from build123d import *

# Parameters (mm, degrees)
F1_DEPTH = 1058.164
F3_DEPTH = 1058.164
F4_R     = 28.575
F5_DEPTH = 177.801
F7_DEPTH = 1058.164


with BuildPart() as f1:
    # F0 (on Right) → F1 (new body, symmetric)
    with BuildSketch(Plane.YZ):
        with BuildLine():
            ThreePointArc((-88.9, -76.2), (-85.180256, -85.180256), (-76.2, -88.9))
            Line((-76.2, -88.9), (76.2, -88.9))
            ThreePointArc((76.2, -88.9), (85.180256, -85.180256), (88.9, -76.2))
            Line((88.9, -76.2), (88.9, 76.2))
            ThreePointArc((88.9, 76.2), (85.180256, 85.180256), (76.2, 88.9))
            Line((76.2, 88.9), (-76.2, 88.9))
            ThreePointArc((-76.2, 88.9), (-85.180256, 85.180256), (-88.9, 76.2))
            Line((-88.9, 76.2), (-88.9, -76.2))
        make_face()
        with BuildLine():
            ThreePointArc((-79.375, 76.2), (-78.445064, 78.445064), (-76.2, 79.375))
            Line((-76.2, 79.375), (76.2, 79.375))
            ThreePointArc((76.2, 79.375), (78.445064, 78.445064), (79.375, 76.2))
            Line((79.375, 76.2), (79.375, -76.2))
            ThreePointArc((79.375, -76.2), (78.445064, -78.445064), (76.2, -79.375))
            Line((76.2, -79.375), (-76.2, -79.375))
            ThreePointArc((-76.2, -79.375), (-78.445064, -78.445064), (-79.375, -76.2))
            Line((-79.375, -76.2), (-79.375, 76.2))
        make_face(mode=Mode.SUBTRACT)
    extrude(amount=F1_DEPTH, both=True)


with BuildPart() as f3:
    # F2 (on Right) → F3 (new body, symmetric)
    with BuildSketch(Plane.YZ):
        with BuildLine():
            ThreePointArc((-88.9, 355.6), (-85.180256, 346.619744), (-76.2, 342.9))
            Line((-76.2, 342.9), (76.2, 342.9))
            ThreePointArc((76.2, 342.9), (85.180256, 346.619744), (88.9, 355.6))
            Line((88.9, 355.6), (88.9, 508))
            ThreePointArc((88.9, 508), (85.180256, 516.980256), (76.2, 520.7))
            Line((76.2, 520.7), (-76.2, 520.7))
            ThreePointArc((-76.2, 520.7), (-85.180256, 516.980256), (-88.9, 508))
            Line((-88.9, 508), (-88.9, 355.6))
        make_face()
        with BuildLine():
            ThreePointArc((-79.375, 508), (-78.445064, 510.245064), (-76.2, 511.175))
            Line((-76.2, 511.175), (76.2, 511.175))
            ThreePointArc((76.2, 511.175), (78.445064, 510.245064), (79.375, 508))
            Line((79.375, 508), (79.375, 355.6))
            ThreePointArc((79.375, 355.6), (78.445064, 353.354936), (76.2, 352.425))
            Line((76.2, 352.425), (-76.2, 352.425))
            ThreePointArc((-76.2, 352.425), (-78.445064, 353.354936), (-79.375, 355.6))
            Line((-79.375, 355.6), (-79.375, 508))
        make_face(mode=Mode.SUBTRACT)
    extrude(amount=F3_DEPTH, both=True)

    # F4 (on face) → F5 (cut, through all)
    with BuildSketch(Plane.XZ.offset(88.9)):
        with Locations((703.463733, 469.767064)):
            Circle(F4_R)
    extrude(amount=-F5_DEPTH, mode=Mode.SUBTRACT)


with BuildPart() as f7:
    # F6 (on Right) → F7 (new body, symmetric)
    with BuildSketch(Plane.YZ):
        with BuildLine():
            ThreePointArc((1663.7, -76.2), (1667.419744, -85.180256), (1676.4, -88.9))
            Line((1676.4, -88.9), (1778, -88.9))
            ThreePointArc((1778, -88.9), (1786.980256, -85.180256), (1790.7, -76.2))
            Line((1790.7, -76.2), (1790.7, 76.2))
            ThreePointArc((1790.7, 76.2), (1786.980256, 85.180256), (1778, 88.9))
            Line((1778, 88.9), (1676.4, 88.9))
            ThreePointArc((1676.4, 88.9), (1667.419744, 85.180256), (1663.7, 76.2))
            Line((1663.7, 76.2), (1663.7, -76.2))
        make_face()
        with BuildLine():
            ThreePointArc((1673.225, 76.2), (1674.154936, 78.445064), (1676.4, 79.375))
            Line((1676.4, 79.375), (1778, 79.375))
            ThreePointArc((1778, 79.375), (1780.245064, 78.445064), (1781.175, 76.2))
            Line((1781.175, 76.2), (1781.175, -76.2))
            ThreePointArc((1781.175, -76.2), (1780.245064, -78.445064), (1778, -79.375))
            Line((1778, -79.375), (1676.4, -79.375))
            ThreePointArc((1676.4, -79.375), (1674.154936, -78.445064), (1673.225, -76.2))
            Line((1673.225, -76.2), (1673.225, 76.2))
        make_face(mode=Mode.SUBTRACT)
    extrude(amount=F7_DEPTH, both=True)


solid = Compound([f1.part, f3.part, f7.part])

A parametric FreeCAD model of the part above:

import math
import FreeCAD as App
import Part
import Sketcher
from FreeCAD import Vector
Q = App.Units.Quantity

doc = App.newDocument("Part")
body = doc.addObject("PartDesign::Body", "Body")

# Sketch on YZ plane
sketch1 = body.newObject("Sketcher::SketchObject", "Sketch")
sketch1.AttachmentSupport = (doc.getObject("YZ_Plane"), [""])
sketch1.MapMode = "FlatFace"
sketch1.addGeometry([
    Part.ArcOfCircle(Part.Circle(Vector(-76.2, -76.2, 0), Vector(0, 0, 1), 12.7), math.radians(-179.999998), math.radians(-90.000002)),  # 0
    Part.LineSegment(Vector(-76.2, -88.9, 0), Vector(76.2, -88.9, 0)),  # 1
    Part.ArcOfCircle(Part.Circle(Vector(76.2, -76.2, 0), Vector(0, 0, 1), 12.7), math.radians(-89.999998), math.radians(-0.000002)),  # 2
    Part.LineSegment(Vector(88.9, -76.2, 0), Vector(88.9, 76.2, 0)),  # 3
    Part.ArcOfCircle(Part.Circle(Vector(76.2, 76.2, 0), Vector(0, 0, 1), 12.7), math.radians(0.000002), math.radians(89.999998)),  # 4
    Part.LineSegment(Vector(76.2, 88.9, 0), Vector(-76.2, 88.9, 0)),  # 5
    Part.ArcOfCircle(Part.Circle(Vector(-76.2, 76.2, 0), Vector(0, 0, 1), 12.7), math.radians(90.000002), math.radians(179.999998)),  # 6
    Part.LineSegment(Vector(-88.9, 76.2, 0), Vector(-88.9, -76.2, 0)),  # 7
    Part.LineSegment(Vector(-79.375, -76.2, 0), Vector(-79.375, 76.2, 0)),  # 8
    Part.ArcOfCircle(Part.Circle(Vector(-76.2, 76.2, 0), Vector(0, 0, 1), 3.175), math.radians(90.000002), math.radians(179.999998)),  # 9
    Part.LineSegment(Vector(-76.2, 79.375, 0), Vector(76.2, 79.375, 0)),  # 10
    Part.ArcOfCircle(Part.Circle(Vector(76.2, 76.2, 0), Vector(0, 0, 1), 3.175), math.radians(0.000002), math.radians(89.999998)),  # 11
    Part.LineSegment(Vector(79.375, 76.2, 0), Vector(79.375, -76.2, 0)),  # 12
    Part.ArcOfCircle(Part.Circle(Vector(76.2, -76.2, 0), Vector(0, 0, 1), 3.175), math.radians(-89.999998), math.radians(-0.000002)),  # 13
    Part.LineSegment(Vector(76.2, -79.375, 0), Vector(-76.2, -79.375, 0)),  # 14
    Part.ArcOfCircle(Part.Circle(Vector(-76.2, -76.2, 0), Vector(0, 0, 1), 3.175), math.radians(-179.999998), math.radians(-90.000002)),  # 15
], False)
sketch1.addConstraint([
    Sketcher.Constraint("Tangent", 0, 2, 1, 1),
    Sketcher.Constraint("Tangent", 1, 2, 2, 1),
    Sketcher.Constraint("Tangent", 2, 2, 3, 1),
    Sketcher.Constraint("Tangent", 3, 2, 4, 1),
    Sketcher.Constraint("Tangent", 4, 2, 5, 1),
    Sketcher.Constraint("Tangent", 5, 2, 6, 1),
    Sketcher.Constraint("Tangent", 6, 2, 7, 1),
    Sketcher.Constraint("Tangent", 7, 2, 0, 1),
    Sketcher.Constraint("Tangent", 8, 2, 9, 2),
    Sketcher.Constraint("Tangent", 9, 1, 10, 1),
    Sketcher.Constraint("Tangent", 10, 2, 11, 2),
    Sketcher.Constraint("Tangent", 11, 1, 12, 1),
    Sketcher.Constraint("Tangent", 12, 2, 13, 2),
    Sketcher.Constraint("Tangent", 13, 1, 14, 1),
    Sketcher.Constraint("Tangent", 14, 2, 15, 2),
    Sketcher.Constraint("Tangent", 15, 1, 8, 1),
    Sketcher.Constraint("Horizontal", 1),
    Sketcher.Constraint("Vertical", 3),
    Sketcher.Constraint("Horizontal", 5),
    Sketcher.Constraint("Vertical", 7),
    Sketcher.Constraint("Vertical", 8),
    Sketcher.Constraint("Horizontal", 10),
    Sketcher.Constraint("Vertical", 12),
    Sketcher.Constraint("Horizontal", 14),
    Sketcher.Constraint("Coincident", 9, 3, 6, 3),
    Sketcher.Constraint("Coincident", 11, 3, 4, 3),
    Sketcher.Constraint("Coincident", 13, 3, 2, 3),
    Sketcher.Constraint("Equal", 0, 2),
    Sketcher.Constraint("Equal", 2, 4),
    Sketcher.Constraint("Equal", 4, 6),
    Sketcher.Constraint("Equal", 13, 15),
    Sketcher.Constraint("Symmetric", 0, 3, 4, 3, -1, 1),
    Sketcher.Constraint("Equal", 14, 3),
    Sketcher.Constraint("Radius", 0, Q("0.5 in")),
    Sketcher.Constraint("DistanceX", 1, 1, 1, 2, Q("6 in")),
    Sketcher.Constraint("Radius", 9, Q("0.125 in")),
])
pad1 = body.newObject("PartDesign::Pad", "Pad")
pad1.Profile = sketch1
pad1.Length = Q("83.32 in")
pad1.Midplane = True
body2 = doc.addObject("PartDesign::Body", "Body001")

# Sketch on YZ plane
sketch2 = body2.newObject("Sketcher::SketchObject", "Sketch001")
sketch2.AttachmentSupport = (doc.getObject("YZ_Plane001"), [""])
sketch2.MapMode = "FlatFace"
sketch2.addGeometry([
    Part.ArcOfCircle(Part.Circle(Vector(-76.2, 355.6, 0), Vector(0, 0, 1), 12.7), math.radians(-179.999998), math.radians(-90.000002)),  # 0
    Part.LineSegment(Vector(-76.2, 342.9, 0), Vector(76.2, 342.9, 0)),  # 1
    Part.ArcOfCircle(Part.Circle(Vector(76.2, 355.6, 0), Vector(0, 0, 1), 12.7), math.radians(-89.999998), math.radians(-0.000002)),  # 2
    Part.LineSegment(Vector(88.9, 355.6, 0), Vector(88.9, 508, 0)),  # 3
    Part.ArcOfCircle(Part.Circle(Vector(76.2, 508, 0), Vector(0, 0, 1), 12.7), math.radians(0.000002), math.radians(89.999998)),  # 4
    Part.LineSegment(Vector(76.2, 520.7, 0), Vector(-76.2, 520.7, 0)),  # 5
    Part.ArcOfCircle(Part.Circle(Vector(-76.2, 508, 0), Vector(0, 0, 1), 12.7), math.radians(90.000002), math.radians(179.999998)),  # 6
    Part.LineSegment(Vector(-88.9, 508, 0), Vector(-88.9, 355.6, 0)),  # 7
    Part.LineSegment(Vector(-79.375, 355.6, 0), Vector(-79.375, 508, 0)),  # 8
    Part.ArcOfCircle(Part.Circle(Vector(-76.2, 508, 0), Vector(0, 0, 1), 3.175), math.radians(90.000002), math.radians(179.999998)),  # 9
    Part.LineSegment(Vector(-76.2, 511.175, 0), Vector(76.2, 511.175, 0)),  # 10
    Part.ArcOfCircle(Part.Circle(Vector(76.2, 508, 0), Vector(0, 0, 1), 3.175), math.radians(0.000002), math.radians(89.999998)),  # 11
    Part.LineSegment(Vector(79.375, 508, 0), Vector(79.375, 355.6, 0)),  # 12
    Part.ArcOfCircle(Part.Circle(Vector(76.2, 355.6, 0), Vector(0, 0, 1), 3.175), math.radians(-89.999998), math.radians(-0.000002)),  # 13
    Part.LineSegment(Vector(76.2, 352.425, 0), Vector(-76.2, 352.425, 0)),  # 14
    Part.ArcOfCircle(Part.Circle(Vector(-76.2, 355.6, 0), Vector(0, 0, 1), 3.175), math.radians(-179.999998), math.radians(-90.000002)),  # 15
], False)
sketch2.addConstraint([
    Sketcher.Constraint("Tangent", 0, 2, 1, 1),
    Sketcher.Constraint("Tangent", 1, 2, 2, 1),
    Sketcher.Constraint("Tangent", 2, 2, 3, 1),
    Sketcher.Constraint("Tangent", 3, 2, 4, 1),
    Sketcher.Constraint("Tangent", 4, 2, 5, 1),
    Sketcher.Constraint("Tangent", 5, 2, 6, 1),
    Sketcher.Constraint("Tangent", 6, 2, 7, 1),
    Sketcher.Constraint("Tangent", 7, 2, 0, 1),
    Sketcher.Constraint("Tangent", 8, 2, 9, 2),
    Sketcher.Constraint("Tangent", 9, 1, 10, 1),
    Sketcher.Constraint("Tangent", 10, 2, 11, 2),
    Sketcher.Constraint("Tangent", 11, 1, 12, 1),
    Sketcher.Constraint("Tangent", 12, 2, 13, 2),
    Sketcher.Constraint("Tangent", 13, 1, 14, 1),
    Sketcher.Constraint("Tangent", 14, 2, 15, 2),
    Sketcher.Constraint("Tangent", 15, 1, 8, 1),
    Sketcher.Constraint("Horizontal", 1),
    Sketcher.Constraint("Vertical", 3),
    Sketcher.Constraint("Horizontal", 5),
    Sketcher.Constraint("Vertical", 7),
    Sketcher.Constraint("Vertical", 8),
    Sketcher.Constraint("Horizontal", 10),
    Sketcher.Constraint("Vertical", 12),
    Sketcher.Constraint("Horizontal", 14),
    Sketcher.Constraint("Coincident", 9, 3, 6, 3),
    Sketcher.Constraint("Coincident", 11, 3, 4, 3),
    Sketcher.Constraint("Coincident", 13, 3, 2, 3),
    Sketcher.Constraint("Equal", 0, 2),
    Sketcher.Constraint("Equal", 2, 4),
    Sketcher.Constraint("Equal", 4, 6),
    Sketcher.Constraint("Equal", 13, 15),
    Sketcher.Constraint("Equal", 14, 3),
    Sketcher.Constraint("Radius", 0, Q("0.5 in")),
    Sketcher.Constraint("DistanceX", 1, 1, 1, 2, Q("6 in")),
    Sketcher.Constraint("DistanceX", 0, 3, -1, 1, Q("3 in")),
    Sketcher.Constraint("DistanceY", -1, 1, 0, 3, Q("14 in")),
    Sketcher.Constraint("Radius", 9, Q("0.125 in")),
])
pad2 = body2.newObject("PartDesign::Pad", "Pad001")
pad2.Profile = sketch2
pad2.Length = Q("83.32 in")
pad2.Midplane = True

# Sketch on XZ plane
sketch3 = body2.newObject("Sketcher::SketchObject", "Sketch002")
sketch3.AttachmentSupport = (doc.getObject("XZ_Plane001"), [""])
sketch3.MapMode = "FlatFace"
sketch3.AttachmentOffset = App.Placement(Vector(0, 0, 3.5 * 25.4), App.Rotation())
sketch3.addGeometry(Part.Circle(Vector(703.463733, 469.767064, 0), Vector(0, 0, 1), 28.575), False)
sketch3.addConstraint([
    Sketcher.Constraint("Diameter", 0, Q("2.25 in")),
    Sketcher.Constraint("DistanceX", -1, 1, 0, 3, Q("703.463733 mm")),
    Sketcher.Constraint("DistanceY", -1, 1, 0, 3, Q("469.767064 mm")),
])
pocket1 = body2.newObject("PartDesign::Pocket", "Pocket")
pocket1.Profile = sketch3
pocket1.Type = "ThroughAll"
body3 = doc.addObject("PartDesign::Body", "Body002")

# Sketch on YZ plane
sketch4 = body3.newObject("Sketcher::SketchObject", "Sketch003")
sketch4.AttachmentSupport = (doc.getObject("YZ_Plane002"), [""])
sketch4.MapMode = "FlatFace"
sketch4.addGeometry([
    Part.ArcOfCircle(Part.Circle(Vector(1676.4, -76.2, 0), Vector(0, 0, 1), 12.7), math.radians(-179.999998), math.radians(-90.000002)),  # 0
    Part.LineSegment(Vector(1676.4, -88.9, 0), Vector(1778, -88.9, 0)),  # 1
    Part.ArcOfCircle(Part.Circle(Vector(1778, -76.2, 0), Vector(0, 0, 1), 12.7), math.radians(-89.999998), math.radians(-0.000002)),  # 2
    Part.LineSegment(Vector(1790.7, -76.2, 0), Vector(1790.7, 76.2, 0)),  # 3
    Part.ArcOfCircle(Part.Circle(Vector(1778, 76.2, 0), Vector(0, 0, 1), 12.7), math.radians(0.000002), math.radians(89.999998)),  # 4
    Part.LineSegment(Vector(1778, 88.9, 0), Vector(1676.4, 88.9, 0)),  # 5
    Part.ArcOfCircle(Part.Circle(Vector(1676.4, 76.2, 0), Vector(0, 0, 1), 12.7), math.radians(90.000002), math.radians(179.999998)),  # 6
    Part.LineSegment(Vector(1663.7, 76.2, 0), Vector(1663.7, -76.2, 0)),  # 7
    Part.LineSegment(Vector(1673.225, -76.2, 0), Vector(1673.225, 76.2, 0)),  # 8
    Part.ArcOfCircle(Part.Circle(Vector(1676.4, 76.2, 0), Vector(0, 0, 1), 3.175), math.radians(90.000002), math.radians(179.999998)),  # 9
    Part.LineSegment(Vector(1676.4, 79.375, 0), Vector(1778, 79.375, 0)),  # 10
    Part.ArcOfCircle(Part.Circle(Vector(1778, 76.2, 0), Vector(0, 0, 1), 3.175), math.radians(0.000002), math.radians(89.999998)),  # 11
    Part.LineSegment(Vector(1781.175, 76.2, 0), Vector(1781.175, -76.2, 0)),  # 12
    Part.ArcOfCircle(Part.Circle(Vector(1778, -76.2, 0), Vector(0, 0, 1), 3.175), math.radians(-89.999998), math.radians(-0.000002)),  # 13
    Part.LineSegment(Vector(1778, -79.375, 0), Vector(1676.4, -79.375, 0)),  # 14
    Part.ArcOfCircle(Part.Circle(Vector(1676.4, -76.2, 0), Vector(0, 0, 1), 3.175), math.radians(-179.999998), math.radians(-90.000002)),  # 15
], False)
sketch4.addConstraint([
    Sketcher.Constraint("Tangent", 0, 2, 1, 1),
    Sketcher.Constraint("Tangent", 1, 2, 2, 1),
    Sketcher.Constraint("Tangent", 2, 2, 3, 1),
    Sketcher.Constraint("Tangent", 3, 2, 4, 1),
    Sketcher.Constraint("Tangent", 4, 2, 5, 1),
    Sketcher.Constraint("Tangent", 5, 2, 6, 1),
    Sketcher.Constraint("Tangent", 6, 2, 7, 1),
    Sketcher.Constraint("Tangent", 7, 2, 0, 1),
    Sketcher.Constraint("Tangent", 8, 2, 9, 2),
    Sketcher.Constraint("Tangent", 9, 1, 10, 1),
    Sketcher.Constraint("Tangent", 10, 2, 11, 2),
    Sketcher.Constraint("Tangent", 11, 1, 12, 1),
    Sketcher.Constraint("Tangent", 12, 2, 13, 2),
    Sketcher.Constraint("Tangent", 13, 1, 14, 1),
    Sketcher.Constraint("Tangent", 14, 2, 15, 2),
    Sketcher.Constraint("Tangent", 15, 1, 8, 1),
    Sketcher.Constraint("Horizontal", 1),
    Sketcher.Constraint("Vertical", 3),
    Sketcher.Constraint("Horizontal", 5),
    Sketcher.Constraint("Vertical", 7),
    Sketcher.Constraint("Vertical", 8),
    Sketcher.Constraint("Horizontal", 10),
    Sketcher.Constraint("Vertical", 12),
    Sketcher.Constraint("Horizontal", 14),
    Sketcher.Constraint("Coincident", 9, 3, 6, 3),
    Sketcher.Constraint("Coincident", 11, 3, 4, 3),
    Sketcher.Constraint("Coincident", 13, 3, 2, 3),
    Sketcher.Constraint("Equal", 0, 2),
    Sketcher.Constraint("Equal", 2, 4),
    Sketcher.Constraint("Equal", 4, 6),
    Sketcher.Constraint("Equal", 13, 15),
    Sketcher.Constraint("Radius", 0, Q("0.5 in")),
    Sketcher.Constraint("DistanceX", 1, 1, 1, 2, Q("4 in")),
    Sketcher.Constraint("DistanceY", 3, 1, 3, 2, Q("6 in")),
    Sketcher.Constraint("DistanceX", -1, 1, 0, 3, Q("66 in")),
    Sketcher.Constraint("DistanceY", 0, 3, -1, 1, Q("3 in")),
    Sketcher.Constraint("Radius", 9, Q("0.125 in")),
])
pad3 = body3.newObject("PartDesign::Pad", "Pad002")
pad3.Profile = sketch4
pad3.Length = Q("83.32 in")
pad3.Midplane = True

doc.recompute()
